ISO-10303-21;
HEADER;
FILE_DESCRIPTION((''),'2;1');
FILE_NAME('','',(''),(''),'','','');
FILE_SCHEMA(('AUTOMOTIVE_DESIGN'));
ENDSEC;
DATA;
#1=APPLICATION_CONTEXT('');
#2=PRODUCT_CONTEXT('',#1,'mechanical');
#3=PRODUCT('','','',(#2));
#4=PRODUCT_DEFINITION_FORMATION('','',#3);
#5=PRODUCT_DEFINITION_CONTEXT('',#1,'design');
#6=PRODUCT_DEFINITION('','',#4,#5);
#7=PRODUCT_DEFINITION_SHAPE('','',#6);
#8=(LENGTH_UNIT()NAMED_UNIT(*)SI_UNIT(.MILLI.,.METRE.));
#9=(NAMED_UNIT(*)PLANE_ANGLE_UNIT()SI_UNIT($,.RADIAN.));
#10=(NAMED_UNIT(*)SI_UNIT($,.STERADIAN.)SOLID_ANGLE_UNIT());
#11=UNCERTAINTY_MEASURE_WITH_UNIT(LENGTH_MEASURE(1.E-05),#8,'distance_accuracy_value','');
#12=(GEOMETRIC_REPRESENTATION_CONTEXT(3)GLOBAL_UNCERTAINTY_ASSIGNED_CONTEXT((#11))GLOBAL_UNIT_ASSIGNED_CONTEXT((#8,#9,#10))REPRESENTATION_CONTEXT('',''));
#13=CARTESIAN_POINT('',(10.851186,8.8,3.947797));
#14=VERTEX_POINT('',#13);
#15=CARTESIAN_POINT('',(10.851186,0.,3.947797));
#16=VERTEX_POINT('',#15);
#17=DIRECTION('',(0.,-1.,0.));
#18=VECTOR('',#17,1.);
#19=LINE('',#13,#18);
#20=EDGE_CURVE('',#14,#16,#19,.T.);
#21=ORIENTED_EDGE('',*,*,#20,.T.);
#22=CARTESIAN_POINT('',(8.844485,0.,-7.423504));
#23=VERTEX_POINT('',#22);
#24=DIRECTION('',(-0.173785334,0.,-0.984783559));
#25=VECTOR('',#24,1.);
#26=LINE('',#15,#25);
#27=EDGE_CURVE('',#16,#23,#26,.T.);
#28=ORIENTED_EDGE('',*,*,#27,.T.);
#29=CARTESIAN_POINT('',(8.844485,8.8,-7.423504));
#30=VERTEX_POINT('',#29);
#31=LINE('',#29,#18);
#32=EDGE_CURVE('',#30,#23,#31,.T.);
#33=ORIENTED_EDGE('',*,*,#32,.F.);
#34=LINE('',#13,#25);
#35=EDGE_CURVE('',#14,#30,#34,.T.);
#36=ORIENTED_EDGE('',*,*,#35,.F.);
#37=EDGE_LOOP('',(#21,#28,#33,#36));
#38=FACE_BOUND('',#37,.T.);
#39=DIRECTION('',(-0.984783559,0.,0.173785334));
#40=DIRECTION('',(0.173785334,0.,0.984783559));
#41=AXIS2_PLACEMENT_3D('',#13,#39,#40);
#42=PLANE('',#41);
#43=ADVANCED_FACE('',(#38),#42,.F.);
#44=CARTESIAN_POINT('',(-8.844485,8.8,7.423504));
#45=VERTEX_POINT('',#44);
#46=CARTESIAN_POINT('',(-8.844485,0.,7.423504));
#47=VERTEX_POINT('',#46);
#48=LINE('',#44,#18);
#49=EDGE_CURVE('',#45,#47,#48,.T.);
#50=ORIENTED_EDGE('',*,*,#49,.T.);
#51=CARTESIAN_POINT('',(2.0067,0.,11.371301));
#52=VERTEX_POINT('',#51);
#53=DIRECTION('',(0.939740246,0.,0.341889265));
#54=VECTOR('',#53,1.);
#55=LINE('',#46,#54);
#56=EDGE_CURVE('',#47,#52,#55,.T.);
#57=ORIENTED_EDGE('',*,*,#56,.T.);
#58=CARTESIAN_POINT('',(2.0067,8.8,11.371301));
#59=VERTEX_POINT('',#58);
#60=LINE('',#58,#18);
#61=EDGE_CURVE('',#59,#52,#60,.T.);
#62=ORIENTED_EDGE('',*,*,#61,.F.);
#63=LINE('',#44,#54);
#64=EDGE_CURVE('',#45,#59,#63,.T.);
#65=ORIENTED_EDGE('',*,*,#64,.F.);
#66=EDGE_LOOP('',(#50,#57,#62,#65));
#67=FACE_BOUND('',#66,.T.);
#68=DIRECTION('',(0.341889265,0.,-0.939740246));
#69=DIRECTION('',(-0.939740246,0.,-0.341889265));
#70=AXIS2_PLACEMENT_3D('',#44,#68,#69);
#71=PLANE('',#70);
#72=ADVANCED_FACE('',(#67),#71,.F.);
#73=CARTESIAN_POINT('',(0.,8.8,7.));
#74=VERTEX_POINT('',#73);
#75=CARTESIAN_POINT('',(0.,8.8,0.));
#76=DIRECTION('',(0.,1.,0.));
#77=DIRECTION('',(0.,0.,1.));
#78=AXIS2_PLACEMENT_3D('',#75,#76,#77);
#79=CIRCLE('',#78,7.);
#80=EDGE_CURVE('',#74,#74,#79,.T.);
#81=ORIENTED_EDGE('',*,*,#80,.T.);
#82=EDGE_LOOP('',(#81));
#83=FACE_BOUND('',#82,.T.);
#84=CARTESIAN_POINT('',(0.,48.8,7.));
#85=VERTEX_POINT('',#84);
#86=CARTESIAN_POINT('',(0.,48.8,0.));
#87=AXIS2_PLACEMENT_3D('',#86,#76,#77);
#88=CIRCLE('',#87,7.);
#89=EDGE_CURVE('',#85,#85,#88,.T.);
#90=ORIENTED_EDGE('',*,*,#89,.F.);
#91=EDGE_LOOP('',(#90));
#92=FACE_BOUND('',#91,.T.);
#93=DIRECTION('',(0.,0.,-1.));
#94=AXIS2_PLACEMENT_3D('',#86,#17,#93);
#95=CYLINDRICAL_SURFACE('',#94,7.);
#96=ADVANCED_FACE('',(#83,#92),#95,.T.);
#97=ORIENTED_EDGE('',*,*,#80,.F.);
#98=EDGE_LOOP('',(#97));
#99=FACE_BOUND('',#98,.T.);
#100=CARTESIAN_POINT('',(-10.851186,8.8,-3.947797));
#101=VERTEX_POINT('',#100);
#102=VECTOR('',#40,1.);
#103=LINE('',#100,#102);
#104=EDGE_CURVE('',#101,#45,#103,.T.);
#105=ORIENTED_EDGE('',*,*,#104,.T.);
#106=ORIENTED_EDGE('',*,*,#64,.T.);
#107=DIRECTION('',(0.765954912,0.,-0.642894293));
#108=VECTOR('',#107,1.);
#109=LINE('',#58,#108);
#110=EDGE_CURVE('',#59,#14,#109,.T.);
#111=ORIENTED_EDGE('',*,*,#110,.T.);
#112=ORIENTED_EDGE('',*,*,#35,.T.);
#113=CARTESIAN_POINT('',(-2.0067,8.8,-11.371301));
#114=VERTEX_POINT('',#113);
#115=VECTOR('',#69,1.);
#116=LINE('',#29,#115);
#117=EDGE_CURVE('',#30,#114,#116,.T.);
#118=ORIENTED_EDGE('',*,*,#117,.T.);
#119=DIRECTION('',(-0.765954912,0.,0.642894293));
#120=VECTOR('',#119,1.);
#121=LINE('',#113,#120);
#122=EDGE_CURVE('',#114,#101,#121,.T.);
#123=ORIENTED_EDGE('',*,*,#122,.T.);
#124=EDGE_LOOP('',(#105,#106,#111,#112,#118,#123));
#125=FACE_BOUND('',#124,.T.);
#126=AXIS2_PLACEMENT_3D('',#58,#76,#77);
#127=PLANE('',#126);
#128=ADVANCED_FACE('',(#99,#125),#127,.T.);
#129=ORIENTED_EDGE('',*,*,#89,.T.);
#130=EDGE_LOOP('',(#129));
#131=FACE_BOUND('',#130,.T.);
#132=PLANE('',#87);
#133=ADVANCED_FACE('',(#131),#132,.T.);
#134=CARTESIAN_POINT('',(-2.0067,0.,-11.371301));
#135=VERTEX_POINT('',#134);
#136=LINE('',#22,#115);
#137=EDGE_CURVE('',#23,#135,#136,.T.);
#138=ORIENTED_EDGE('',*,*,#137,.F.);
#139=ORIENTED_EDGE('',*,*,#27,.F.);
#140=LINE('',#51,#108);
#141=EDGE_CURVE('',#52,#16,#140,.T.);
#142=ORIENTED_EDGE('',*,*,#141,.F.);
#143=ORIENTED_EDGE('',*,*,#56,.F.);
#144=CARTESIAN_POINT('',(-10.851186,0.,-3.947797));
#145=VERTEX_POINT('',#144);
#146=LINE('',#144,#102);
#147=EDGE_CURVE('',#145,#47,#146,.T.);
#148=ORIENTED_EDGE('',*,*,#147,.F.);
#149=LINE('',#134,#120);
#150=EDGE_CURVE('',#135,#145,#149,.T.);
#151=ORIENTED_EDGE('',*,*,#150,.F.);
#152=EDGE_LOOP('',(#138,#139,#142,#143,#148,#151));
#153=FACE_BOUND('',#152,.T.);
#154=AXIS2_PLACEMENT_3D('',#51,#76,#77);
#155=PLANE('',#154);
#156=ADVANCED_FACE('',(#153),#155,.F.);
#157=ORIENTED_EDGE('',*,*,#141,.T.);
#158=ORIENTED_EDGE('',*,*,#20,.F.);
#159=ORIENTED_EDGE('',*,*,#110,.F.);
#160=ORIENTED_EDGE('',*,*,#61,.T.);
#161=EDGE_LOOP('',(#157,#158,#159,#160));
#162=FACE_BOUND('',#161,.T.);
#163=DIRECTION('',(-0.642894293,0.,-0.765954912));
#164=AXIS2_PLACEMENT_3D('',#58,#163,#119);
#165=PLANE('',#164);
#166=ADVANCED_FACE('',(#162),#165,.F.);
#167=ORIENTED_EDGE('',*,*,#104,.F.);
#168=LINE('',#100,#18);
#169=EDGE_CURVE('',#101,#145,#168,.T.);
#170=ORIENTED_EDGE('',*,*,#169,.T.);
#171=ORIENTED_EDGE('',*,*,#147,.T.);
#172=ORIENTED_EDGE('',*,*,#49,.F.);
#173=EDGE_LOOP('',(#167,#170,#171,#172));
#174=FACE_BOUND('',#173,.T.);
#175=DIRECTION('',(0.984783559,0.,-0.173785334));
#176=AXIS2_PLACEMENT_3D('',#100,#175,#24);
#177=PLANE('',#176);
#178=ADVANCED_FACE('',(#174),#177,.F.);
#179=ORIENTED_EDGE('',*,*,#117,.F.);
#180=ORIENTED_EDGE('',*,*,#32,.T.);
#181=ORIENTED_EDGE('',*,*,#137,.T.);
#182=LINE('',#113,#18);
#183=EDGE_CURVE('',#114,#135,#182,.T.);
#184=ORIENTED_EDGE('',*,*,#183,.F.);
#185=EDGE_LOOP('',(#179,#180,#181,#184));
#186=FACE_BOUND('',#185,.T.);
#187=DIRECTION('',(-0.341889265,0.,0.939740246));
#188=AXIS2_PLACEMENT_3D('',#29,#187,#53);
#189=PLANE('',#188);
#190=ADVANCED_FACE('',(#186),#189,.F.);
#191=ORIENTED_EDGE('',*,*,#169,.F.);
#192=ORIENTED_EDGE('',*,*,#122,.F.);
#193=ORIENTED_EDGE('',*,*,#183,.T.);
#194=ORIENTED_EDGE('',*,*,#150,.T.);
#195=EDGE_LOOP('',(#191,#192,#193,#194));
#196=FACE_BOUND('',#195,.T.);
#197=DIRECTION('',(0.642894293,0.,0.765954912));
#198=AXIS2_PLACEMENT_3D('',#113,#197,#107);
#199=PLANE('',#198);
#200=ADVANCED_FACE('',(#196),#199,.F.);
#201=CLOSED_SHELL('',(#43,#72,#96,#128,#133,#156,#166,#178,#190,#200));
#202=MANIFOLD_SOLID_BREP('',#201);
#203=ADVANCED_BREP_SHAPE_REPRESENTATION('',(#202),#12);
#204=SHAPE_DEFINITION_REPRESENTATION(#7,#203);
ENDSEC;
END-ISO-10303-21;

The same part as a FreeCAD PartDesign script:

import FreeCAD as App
import Part
import Sketcher
from FreeCAD import Vector
Q = App.Units.Quantity

doc = App.newDocument("Part")
body = doc.addObject("PartDesign::Body", "Body")

sketch1 = doc.addObject("Sketcher::SketchObject", "Sketch")
body.addObject(sketch1)
sketch1.AttachmentSupport = (doc.XZ_Plane, [""])
sketch1.MapMode = "FlatFace"
sketch1.addGeometry(Part.LineSegment(Vector(2, 11, 0), Vector(11, 4, 0)), False)
sketch1.addGeometry(Part.LineSegment(Vector(11, 4, 0), Vector(9, -7, 0)), False)
sketch1.addGeometry(Part.LineSegment(Vector(9, -7, 0), Vector(-2, -11, 0)), False)
sketch1.addGeometry(Part.LineSegment(Vector(-2, -11, 0), Vector(-11, -4, 0)), False)
sketch1.addGeometry(Part.LineSegment(Vector(-11, -4, 0), Vector(-9, 7, 0)), False)
sketch1.addGeometry(Part.LineSegment(Vector(-9, 7, 0), Vector(2, 11, 0)), False)
sketch1.addConstraint(Sketcher.Constraint("Coincident", 0, 2, 1, 1))
sketch1.addConstraint(Sketcher.Constraint("Coincident", 1, 2, 2, 1))
sketch1.addConstraint(Sketcher.Constraint("Coincident", 2, 2, 3, 1))
sketch1.addConstraint(Sketcher.Constraint("Coincident", 3, 2, 4, 1))
sketch1.addConstraint(Sketcher.Constraint("Coincident", 4, 2, 5, 1))
sketch1.addConstraint(Sketcher.Constraint("Coincident", 5, 2, 0, 1))
sketch1.addConstraint(Sketcher.Constraint("Symmetric", 0, 2, 3, 2, -1, 1))
sketch1.addConstraint(Sketcher.Constraint("Symmetric", 1, 2, 4, 2, -1, 1))
sketch1.addConstraint(Sketcher.Constraint("Symmetric", 2, 2, 5, 2, -1, 1))
sketch1.addConstraint(Sketcher.Constraint("Equal", 0, 1))
sketch1.addConstraint(Sketcher.Constraint("Equal", 1, 2))
sketch1.addConstraint(Sketcher.Constraint("DistanceX", 2, 2, -1, 1, Q("2.0067 mm")))
sketch1.addConstraint(Sketcher.Constraint("DistanceY", 2, 2, -1, 1, Q("11.371301 mm")))
sketch1.addConstraint(Sketcher.Constraint("DistanceX", 1, 2, 0, 2, Q("2.0067 mm")))
sketch1.addConstraint(Sketcher.Constraint("DistanceY", 1, 2, 0, 2, Q("11.371301 mm")))
pad1 = doc.addObject("PartDesign::Pad", "Pad")
body.addObject(pad1)
pad1.Profile = sketch1
pad1.Length = 8.8
pad1.Reversed = True

sketch2 = doc.addObject("Sketcher::SketchObject", "Sketch001")
body.addObject(sketch2)
sketch2.AttachmentSupport = (doc.XZ_Plane, [""])
sketch2.MapMode = "FlatFace"
sketch2.AttachmentOffset = App.Placement(Vector(0, 0, -8.8), App.Rotation())
sketch2.addGeometry(Part.Circle(Vector(0, 0, 0), Vector(0, 0, 1), 7), False)
sketch2.addConstraint(Sketcher.Constraint("Coincident", 0, 3, -1, 1))
sketch2.addConstraint(Sketcher.Constraint("Diameter", 0, Q("14 mm")))
pad2 = doc.addObject("PartDesign::Pad", "Pad001")
body.addObject(pad2)
pad2.Profile = sketch2
pad2.Length = 40
pad2.Reversed = True

doc.recompute()
